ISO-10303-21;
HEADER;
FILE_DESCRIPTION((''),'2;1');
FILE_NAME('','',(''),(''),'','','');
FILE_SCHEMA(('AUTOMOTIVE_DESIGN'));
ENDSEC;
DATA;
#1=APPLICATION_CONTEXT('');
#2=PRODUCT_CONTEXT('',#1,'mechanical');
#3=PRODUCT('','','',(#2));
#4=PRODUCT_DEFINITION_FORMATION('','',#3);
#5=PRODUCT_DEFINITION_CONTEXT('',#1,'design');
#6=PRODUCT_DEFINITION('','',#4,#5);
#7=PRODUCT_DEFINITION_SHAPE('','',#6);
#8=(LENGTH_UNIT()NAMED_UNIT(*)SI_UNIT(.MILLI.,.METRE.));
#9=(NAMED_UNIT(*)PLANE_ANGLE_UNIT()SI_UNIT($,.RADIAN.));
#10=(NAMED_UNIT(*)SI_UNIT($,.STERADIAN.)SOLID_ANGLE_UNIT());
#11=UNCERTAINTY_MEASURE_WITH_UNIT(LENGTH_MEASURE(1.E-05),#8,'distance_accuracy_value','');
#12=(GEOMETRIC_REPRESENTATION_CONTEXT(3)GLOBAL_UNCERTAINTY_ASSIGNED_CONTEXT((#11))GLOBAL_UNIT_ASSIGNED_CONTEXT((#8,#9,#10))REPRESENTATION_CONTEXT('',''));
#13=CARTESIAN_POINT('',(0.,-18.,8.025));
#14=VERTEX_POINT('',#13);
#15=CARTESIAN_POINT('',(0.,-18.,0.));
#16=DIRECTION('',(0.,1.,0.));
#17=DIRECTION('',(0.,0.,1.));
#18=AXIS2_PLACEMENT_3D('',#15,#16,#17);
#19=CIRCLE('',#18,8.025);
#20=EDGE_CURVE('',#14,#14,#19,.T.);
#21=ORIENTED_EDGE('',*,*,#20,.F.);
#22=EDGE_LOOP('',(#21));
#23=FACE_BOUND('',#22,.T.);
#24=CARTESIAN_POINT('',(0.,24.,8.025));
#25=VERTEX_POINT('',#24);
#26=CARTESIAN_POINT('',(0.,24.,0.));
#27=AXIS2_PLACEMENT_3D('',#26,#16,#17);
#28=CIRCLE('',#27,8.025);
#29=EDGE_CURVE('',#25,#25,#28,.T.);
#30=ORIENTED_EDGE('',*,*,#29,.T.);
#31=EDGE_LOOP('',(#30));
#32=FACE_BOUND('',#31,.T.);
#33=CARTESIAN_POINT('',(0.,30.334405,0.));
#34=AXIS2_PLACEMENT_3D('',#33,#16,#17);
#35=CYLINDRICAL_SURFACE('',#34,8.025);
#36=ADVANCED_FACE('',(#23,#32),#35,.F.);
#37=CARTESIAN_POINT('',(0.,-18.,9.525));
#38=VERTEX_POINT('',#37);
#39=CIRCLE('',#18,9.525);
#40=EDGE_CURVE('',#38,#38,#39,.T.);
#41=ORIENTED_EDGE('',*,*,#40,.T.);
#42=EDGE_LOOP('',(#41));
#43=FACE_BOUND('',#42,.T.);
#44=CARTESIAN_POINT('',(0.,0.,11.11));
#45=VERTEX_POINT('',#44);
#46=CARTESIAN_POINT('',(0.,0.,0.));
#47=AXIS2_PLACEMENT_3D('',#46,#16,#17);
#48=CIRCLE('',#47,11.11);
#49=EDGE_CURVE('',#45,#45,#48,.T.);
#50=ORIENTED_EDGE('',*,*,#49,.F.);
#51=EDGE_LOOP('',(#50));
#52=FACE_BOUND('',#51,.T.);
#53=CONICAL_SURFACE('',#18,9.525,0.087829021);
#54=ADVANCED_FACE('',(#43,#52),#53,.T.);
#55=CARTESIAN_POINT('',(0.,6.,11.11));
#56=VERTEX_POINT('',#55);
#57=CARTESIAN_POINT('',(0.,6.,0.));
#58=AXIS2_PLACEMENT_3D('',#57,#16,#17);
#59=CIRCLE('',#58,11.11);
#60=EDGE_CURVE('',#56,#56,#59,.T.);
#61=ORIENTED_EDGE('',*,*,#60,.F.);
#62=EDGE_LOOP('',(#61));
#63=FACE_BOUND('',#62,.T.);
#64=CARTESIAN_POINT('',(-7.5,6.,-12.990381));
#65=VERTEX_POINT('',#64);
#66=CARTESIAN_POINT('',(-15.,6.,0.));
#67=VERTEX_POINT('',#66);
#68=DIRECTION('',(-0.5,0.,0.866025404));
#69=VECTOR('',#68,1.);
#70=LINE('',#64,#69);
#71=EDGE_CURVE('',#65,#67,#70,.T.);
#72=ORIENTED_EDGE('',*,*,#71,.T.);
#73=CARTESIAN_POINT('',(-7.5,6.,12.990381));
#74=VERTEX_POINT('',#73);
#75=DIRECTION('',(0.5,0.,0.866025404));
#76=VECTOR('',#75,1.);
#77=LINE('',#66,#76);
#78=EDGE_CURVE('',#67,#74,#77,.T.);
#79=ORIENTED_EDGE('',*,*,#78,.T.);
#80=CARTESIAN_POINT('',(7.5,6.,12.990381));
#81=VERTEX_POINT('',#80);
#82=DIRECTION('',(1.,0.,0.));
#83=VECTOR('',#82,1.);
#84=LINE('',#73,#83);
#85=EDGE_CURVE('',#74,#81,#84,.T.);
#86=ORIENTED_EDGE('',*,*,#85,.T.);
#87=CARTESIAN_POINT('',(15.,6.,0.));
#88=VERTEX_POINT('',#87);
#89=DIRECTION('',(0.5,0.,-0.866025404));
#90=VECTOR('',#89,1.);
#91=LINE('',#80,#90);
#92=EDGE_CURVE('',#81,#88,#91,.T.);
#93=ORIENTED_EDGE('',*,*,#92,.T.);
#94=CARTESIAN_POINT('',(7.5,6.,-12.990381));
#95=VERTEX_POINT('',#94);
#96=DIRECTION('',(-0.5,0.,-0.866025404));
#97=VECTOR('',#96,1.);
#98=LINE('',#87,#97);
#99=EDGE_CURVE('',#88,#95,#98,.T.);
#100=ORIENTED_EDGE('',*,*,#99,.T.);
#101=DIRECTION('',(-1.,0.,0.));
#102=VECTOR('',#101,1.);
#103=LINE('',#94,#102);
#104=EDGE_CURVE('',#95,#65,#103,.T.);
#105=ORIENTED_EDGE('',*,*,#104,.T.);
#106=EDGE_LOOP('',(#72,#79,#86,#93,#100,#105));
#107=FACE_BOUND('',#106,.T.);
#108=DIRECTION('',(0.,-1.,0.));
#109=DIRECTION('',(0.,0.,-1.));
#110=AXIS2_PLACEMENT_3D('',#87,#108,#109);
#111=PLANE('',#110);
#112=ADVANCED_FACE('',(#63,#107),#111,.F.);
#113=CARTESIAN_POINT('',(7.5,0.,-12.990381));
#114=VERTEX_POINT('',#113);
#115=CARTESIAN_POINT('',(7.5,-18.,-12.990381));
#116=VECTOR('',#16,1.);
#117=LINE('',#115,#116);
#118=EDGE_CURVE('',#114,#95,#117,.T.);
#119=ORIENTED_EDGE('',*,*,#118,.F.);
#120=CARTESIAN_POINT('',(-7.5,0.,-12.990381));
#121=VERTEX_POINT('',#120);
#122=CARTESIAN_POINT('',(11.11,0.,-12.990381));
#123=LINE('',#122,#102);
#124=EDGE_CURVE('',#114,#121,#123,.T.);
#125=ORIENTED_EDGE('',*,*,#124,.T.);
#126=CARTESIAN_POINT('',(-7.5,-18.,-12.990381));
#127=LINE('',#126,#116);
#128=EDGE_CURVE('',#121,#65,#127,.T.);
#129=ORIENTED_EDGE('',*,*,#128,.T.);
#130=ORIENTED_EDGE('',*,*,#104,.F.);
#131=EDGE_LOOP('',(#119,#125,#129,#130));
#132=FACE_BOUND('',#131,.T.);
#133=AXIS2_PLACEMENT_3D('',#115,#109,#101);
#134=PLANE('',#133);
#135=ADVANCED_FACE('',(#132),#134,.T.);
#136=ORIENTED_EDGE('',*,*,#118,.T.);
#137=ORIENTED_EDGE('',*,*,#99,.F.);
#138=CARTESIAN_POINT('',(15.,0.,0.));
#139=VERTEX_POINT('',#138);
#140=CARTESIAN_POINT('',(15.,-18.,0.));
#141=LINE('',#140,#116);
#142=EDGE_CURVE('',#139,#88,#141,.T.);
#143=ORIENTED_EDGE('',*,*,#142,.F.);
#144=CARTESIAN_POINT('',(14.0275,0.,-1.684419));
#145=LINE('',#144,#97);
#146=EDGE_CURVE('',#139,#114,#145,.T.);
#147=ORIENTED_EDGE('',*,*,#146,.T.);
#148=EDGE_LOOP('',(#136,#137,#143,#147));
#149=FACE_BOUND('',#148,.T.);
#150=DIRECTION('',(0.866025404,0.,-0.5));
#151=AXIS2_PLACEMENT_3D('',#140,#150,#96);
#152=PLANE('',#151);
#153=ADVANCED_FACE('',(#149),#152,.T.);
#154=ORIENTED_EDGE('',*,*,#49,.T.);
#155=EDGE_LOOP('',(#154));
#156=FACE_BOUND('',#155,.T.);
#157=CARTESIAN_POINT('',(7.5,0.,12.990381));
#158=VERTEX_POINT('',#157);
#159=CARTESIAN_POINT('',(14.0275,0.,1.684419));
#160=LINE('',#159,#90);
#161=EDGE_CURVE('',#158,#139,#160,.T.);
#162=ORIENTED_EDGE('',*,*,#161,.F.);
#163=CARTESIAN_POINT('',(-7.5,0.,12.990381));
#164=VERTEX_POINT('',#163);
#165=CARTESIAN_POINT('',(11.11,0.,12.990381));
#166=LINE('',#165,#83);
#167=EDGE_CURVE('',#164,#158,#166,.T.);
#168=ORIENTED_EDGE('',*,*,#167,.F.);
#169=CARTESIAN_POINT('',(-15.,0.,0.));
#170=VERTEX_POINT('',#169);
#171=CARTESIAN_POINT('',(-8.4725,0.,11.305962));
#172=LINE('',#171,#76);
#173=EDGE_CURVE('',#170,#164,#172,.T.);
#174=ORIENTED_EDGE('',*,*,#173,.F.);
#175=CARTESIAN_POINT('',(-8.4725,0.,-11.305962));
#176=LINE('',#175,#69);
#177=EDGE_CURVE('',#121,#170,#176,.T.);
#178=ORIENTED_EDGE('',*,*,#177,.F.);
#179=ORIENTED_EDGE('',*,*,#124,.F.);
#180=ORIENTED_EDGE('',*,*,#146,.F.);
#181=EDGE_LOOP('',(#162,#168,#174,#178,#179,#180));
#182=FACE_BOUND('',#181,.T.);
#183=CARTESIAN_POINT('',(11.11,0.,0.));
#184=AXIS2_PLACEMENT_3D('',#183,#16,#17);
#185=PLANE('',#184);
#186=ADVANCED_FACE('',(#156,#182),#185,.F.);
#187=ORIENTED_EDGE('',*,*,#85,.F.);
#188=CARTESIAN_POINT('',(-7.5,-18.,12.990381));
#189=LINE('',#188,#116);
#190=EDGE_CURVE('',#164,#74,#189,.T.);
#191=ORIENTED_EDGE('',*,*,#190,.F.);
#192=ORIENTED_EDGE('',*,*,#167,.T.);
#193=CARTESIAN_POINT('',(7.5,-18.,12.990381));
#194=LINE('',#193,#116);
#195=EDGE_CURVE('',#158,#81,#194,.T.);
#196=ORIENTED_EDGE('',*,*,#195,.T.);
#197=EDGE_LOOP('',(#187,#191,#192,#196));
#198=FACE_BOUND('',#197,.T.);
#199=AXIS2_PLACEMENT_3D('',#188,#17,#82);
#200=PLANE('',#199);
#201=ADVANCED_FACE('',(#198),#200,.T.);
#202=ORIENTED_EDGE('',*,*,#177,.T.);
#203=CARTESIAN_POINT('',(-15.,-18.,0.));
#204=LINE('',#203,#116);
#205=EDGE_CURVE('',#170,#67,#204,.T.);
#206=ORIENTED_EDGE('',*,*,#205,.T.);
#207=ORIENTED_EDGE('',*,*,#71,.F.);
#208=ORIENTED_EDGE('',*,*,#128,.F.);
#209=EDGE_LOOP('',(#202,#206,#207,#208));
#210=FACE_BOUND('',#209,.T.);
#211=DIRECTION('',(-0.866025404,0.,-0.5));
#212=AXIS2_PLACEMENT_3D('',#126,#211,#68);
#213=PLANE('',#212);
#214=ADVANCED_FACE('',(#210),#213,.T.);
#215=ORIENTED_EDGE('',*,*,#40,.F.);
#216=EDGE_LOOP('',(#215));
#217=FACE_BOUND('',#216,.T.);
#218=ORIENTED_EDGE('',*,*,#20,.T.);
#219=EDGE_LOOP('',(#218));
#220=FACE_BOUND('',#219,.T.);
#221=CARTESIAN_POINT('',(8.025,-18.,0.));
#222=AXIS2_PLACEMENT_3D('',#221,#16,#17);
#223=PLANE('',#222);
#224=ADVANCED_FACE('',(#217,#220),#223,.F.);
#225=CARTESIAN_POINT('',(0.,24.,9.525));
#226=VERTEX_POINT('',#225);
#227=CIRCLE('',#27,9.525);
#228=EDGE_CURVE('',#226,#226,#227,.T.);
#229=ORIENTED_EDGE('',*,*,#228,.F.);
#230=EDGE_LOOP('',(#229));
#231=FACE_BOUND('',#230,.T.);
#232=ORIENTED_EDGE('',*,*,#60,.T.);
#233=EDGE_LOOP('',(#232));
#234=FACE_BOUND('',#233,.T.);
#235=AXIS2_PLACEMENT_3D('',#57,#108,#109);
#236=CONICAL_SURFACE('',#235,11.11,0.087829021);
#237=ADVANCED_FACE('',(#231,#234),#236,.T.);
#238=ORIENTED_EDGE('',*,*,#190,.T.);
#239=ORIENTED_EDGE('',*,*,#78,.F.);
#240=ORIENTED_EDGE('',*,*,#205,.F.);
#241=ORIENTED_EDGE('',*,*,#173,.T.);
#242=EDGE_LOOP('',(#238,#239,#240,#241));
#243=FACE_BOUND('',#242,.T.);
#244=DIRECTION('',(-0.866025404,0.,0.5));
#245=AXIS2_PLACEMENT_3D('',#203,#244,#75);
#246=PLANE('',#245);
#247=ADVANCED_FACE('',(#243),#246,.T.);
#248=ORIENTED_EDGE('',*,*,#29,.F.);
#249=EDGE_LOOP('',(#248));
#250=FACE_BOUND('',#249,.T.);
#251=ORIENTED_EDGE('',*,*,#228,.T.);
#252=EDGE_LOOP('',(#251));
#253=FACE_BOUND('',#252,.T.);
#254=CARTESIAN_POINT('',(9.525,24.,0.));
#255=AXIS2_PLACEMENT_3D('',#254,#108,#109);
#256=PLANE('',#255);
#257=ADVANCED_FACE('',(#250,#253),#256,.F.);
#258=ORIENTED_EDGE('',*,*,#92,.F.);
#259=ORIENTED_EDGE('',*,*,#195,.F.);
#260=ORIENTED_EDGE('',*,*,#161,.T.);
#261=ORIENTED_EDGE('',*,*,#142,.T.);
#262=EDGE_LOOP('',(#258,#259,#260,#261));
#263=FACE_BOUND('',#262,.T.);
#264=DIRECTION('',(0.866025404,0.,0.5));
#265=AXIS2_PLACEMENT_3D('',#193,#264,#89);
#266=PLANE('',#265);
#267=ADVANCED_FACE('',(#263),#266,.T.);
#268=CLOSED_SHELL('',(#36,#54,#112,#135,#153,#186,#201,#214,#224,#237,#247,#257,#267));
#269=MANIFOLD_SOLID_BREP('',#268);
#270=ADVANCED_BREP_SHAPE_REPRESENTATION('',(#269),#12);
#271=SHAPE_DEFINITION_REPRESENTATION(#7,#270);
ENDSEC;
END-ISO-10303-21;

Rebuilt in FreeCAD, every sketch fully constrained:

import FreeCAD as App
import Part
import Sketcher
from FreeCAD import Vector
Q = App.Units.Quantity


def add_polygon(sketch, points):
    """Adds a closed chain of lines whose ends are joined by coincident constraints."""
    first, n = sketch.GeometryCount, len(points)
    for a, b in zip(points, points[1:] + points[:1]):
        sketch.addGeometry(Part.LineSegment(App.Vector(*a, 0), App.Vector(*b, 0)), False)
    for i in range(n):
        sketch.addConstraint(Sketcher.Constraint("Coincident", first + i, 2, first + (i + 1) % n, 1))

doc = App.newDocument("Part")
body = doc.addObject("PartDesign::Body", "Body")

sketch1 = doc.addObject("Sketcher::SketchObject", "Sketch")
body.addObject(sketch1)
sketch1.AttachmentSupport = (doc.XY_Plane, [""])
sketch1.MapMode = "FlatFace"
add_polygon(sketch1, [(8.025, 24), (8.025, -18), (9.525, -18), (11.11, 0), (15, 0), (15, 6), (11.11, 6), (9.525, 24)])
sketch1.addConstraint([
    Sketcher.Constraint("Vertical", 0),
    Sketcher.Constraint("Horizontal", 1),
    Sketcher.Constraint("Horizontal", 3),
    Sketcher.Constraint("Vertical", 4),
    Sketcher.Constraint("Horizontal", 5),
    Sketcher.Constraint("Horizontal", 7),
    Sketcher.Constraint("PointOnObject", 2, 2, -1),
    Sketcher.Constraint("Vertical", 2, 2, 5, 2),
    Sketcher.Constraint("Vertical", 1, 2, 6, 2),
    Sketcher.Constraint("Equal", 2, 6),
    Sketcher.Constraint("DistanceY", 0, 2, 0, 1, Q("42 mm")),
    Sketcher.Constraint("DistanceY", 4, 1, 4, 2, Q("6 mm")),
    Sketcher.Constraint("DistanceX", 1, 1, 1, 2, Q("1.5 mm")),
    Sketcher.Constraint("DistanceX", -1, 1, 3, 2, Q("15 mm")),
    Sketcher.Constraint("DistanceX", 3, 1, 3, 2, Q("3.89 mm")),
    Sketcher.Constraint("DistanceX", -1, 1, 0, 2, Q("8.025 mm")),
])
revolution = doc.addObject("PartDesign::Revolution", "Revolution")
body.addObject(revolution)
revolution.Profile = sketch1
revolution.ReferenceAxis = (sketch1, ["V_Axis"])
revolution.Angle = 360

sketch2 = doc.addObject("Sketcher::SketchObject", "Sketch001")
body.addObject(sketch2)
sketch2.AttachmentSupport = (doc.XZ_Plane, [""])
sketch2.MapMode = "FlatFace"
sketch2.AttachmentOffset = App.Placement(Vector(0, 0, -6), App.Rotation())
add_polygon(sketch2, [(-21.97, -21.97), (-21.97, 21.97), (21.97, 21.97), (21.97, -21.97)])
add_polygon(sketch2, [(7.5, -12.990381), (15, 0), (7.5, 12.990381), (-7.5, 12.990381), (-15, 0), (-7.5, -12.990381)])
sketch2.addConstraint([
    Sketcher.Constraint("Vertical", 0),
    Sketcher.Constraint("Horizontal", 1),
    Sketcher.Constraint("Vertical", 2),
    Sketcher.Constraint("Horizontal", 3),
    Sketcher.Constraint("Horizontal", 6),
    Sketcher.Constraint("Horizontal", 9),
    Sketcher.Constraint("Symmetric", 0, 2, 2, 2, -1, 1),
    Sketcher.Constraint("Symmetric", 4, 2, 7, 2, -1, 1),
    Sketcher.Constraint("Symmetric", 5, 2, 8, 2, -1, 1),
    Sketcher.Constraint("PointOnObject", 4, 2, -1),
    Sketcher.Constraint("Parallel", 4, 7),
    Sketcher.Constraint("Vertical", 6, 2, 8, 2),
    Sketcher.Constraint("Equal", 3, 0),
    Sketcher.Constraint("DistanceX", 6, 2, 6, 1, Q("15 mm")),
    Sketcher.Constraint("Angle", 4, Q("60 deg")),
    Sketcher.Constraint("Distance", 4, Q("15 mm")),
    Sketcher.Constraint("DistanceX", 1, 1, 1, 2, Q("43.94 mm")),
])
pocket1 = doc.addObject("PartDesign::Pocket", "Pocket")
body.addObject(pocket1)
pocket1.Profile = sketch2
pocket1.Type = "ThroughAll"
pocket1.Reversed = True

doc.recompute()
